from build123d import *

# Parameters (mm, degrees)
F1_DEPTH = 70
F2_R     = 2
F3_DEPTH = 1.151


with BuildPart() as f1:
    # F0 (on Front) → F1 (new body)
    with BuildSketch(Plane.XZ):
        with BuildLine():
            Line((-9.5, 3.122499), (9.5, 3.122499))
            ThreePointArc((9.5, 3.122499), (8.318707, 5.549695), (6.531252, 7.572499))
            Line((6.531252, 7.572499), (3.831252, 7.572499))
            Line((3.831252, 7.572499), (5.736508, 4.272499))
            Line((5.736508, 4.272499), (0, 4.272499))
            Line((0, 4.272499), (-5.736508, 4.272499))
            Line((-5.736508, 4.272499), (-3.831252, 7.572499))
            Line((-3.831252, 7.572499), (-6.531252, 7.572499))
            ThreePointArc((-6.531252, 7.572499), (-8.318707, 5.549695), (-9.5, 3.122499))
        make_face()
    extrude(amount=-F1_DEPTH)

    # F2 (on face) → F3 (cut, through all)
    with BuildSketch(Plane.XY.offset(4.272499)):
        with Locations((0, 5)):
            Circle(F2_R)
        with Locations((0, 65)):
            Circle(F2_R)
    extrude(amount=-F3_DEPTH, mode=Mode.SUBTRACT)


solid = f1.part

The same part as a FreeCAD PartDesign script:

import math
import FreeCAD as App
import Part
import Sketcher
Q = App.Units.Quantity

doc = App.newDocument("Part")
body = doc.addObject("PartDesign::Body", "Body")

# Sketch on XZ plane
sketch1 = body.newObject("Sketcher::SketchObject", "Sketch")
sketch1.AttachmentSupport = (doc.getObject("XZ_Plane"), [""])
sketch1.MapMode = "FlatFace"
sketch1.addGeometry(Part.LineSegment(App.Vector(-9.5, 3.1, 0), App.Vector(9.5, 3.1, 0)), False)
sketch1.addGeometry(Part.ArcOfCircle(Part.Circle(App.Vector(0, 0, 0), App.Vector(0, 0, 1), 10), math.radians(18), math.radians(49)), False)
sketch1.addGeometry(Part.LineSegment(App.Vector(6.5, 7.6, 0), App.Vector(3.8, 7.6, 0)), False)
sketch1.addGeometry(Part.LineSegment(App.Vector(3.8, 7.6, 0), App.Vector(5.7, 4.3, 0)), False)
sketch1.addGeometry(Part.LineSegment(App.Vector(5.7, 4.3, 0), App.Vector(-5.7, 4.3, 0)), False)
sketch1.addGeometry(Part.LineSegment(App.Vector(-5.7, 4.3, 0), App.Vector(-3.8, 7.6, 0)), False)
sketch1.addGeometry(Part.LineSegment(App.Vector(-3.8, 7.6, 0), App.Vector(-6.5, 7.6, 0)), False)
sketch1.addGeometry(Part.ArcOfCircle(Part.Circle(App.Vector(0, 0, 0), App.Vector(0, 0, 1), 10), math.radians(131), math.radians(162)), False)
sketch1.addConstraint(Sketcher.Constraint("Coincident", 0, 2, 1, 1))
sketch1.addConstraint(Sketcher.Constraint("Coincident", 1, 2, 2, 1))
sketch1.addConstraint(Sketcher.Constraint("Coincident", 2, 2, 3, 1))
sketch1.addConstraint(Sketcher.Constraint("Coincident", 3, 2, 4, 1))
sketch1.addConstraint(Sketcher.Constraint("Coincident", 4, 2, 5, 1))
sketch1.addConstraint(Sketcher.Constraint("Coincident", 5, 2, 6, 1))
sketch1.addConstraint(Sketcher.Constraint("Coincident", 6, 2, 7, 1))
sketch1.addConstraint(Sketcher.Constraint("Coincident", 7, 2, 0, 1))
sketch1.addConstraint(Sketcher.Constraint("Horizontal", 0))
sketch1.addConstraint(Sketcher.Constraint("Horizontal", 2))
sketch1.addConstraint(Sketcher.Constraint("Horizontal", 4))
sketch1.addConstraint(Sketcher.Constraint("Horizontal", 6))
sketch1.addConstraint(Sketcher.Constraint("Coincident", 1, 3, -1, 1))
sketch1.addConstraint(Sketcher.Constraint("Coincident", 7, 3, -1, 1))
sketch1.addConstraint(Sketcher.Constraint("Equal", 1, 7))
sketch1.addConstraint(Sketcher.Constraint("Symmetric", 2, 2, 5, 2, -2))
sketch1.addConstraint(Sketcher.Constraint("Equal", 3, 5))
sketch1.addConstraint(Sketcher.Constraint("DistanceX", 0, 1, 0, 2, 19.0))
sketch1.addConstraint(Sketcher.Constraint("Angle", 3, Q("-59.999999 deg")))
sketch1.addConstraint(Sketcher.Constraint("DistanceX", 2, 2, 2, 1, 2.7))
sketch1.addConstraint(Sketcher.Constraint("DistanceY", 3, 2, 1, 2, 3.3))
sketch1.addConstraint(Sketcher.Constraint("DistanceY", 0, 2, 1, 2, 4.45))
sketch1.addConstraint(Sketcher.Constraint("Radius", 1, 9.999995))
pad1 = body.newObject("PartDesign::Pad", "Pad")
pad1.Profile = sketch1
pad1.Length = 70
pad1.Reversed = True

# Sketch on XY plane
sketch2 = body.newObject("Sketcher::SketchObject", "Sketch001")
sketch2.AttachmentSupport = (doc.getObject("XY_Plane"), [""])
sketch2.MapMode = "FlatFace"
sketch2.AttachmentOffset = App.Placement(App.Vector(0, 0, 4.272499), App.Rotation())
sketch2.addGeometry(Part.Circle(App.Vector(0, 5, 0), App.Vector(0, 0, 1), 2), False)
sketch2.addGeometry(Part.Circle(App.Vector(0, 65, 0), App.Vector(0, 0, 1), 2), False)
sketch2.addConstraint(Sketcher.Constraint("Equal", 0, 1))
sketch2.addConstraint(Sketcher.Constraint("PointOnObject", 0, 3, -2))
sketch2.addConstraint(Sketcher.Constraint("PointOnObject", 1, 3, -2))
sketch2.addConstraint(Sketcher.Constraint("Diameter", 0, 4.0))
sketch2.addConstraint(Sketcher.Constraint("DistanceY", -1, 1, 0, 3, 5.0))
sketch2.addConstraint(Sketcher.Constraint("DistanceY", -1, 1, 1, 3, 65.0))
pocket1 = body.newObject("PartDesign::Pocket", "Pocket")
pocket1.Profile = sketch2
pocket1.Type = "ThroughAll"

doc.recompute()
